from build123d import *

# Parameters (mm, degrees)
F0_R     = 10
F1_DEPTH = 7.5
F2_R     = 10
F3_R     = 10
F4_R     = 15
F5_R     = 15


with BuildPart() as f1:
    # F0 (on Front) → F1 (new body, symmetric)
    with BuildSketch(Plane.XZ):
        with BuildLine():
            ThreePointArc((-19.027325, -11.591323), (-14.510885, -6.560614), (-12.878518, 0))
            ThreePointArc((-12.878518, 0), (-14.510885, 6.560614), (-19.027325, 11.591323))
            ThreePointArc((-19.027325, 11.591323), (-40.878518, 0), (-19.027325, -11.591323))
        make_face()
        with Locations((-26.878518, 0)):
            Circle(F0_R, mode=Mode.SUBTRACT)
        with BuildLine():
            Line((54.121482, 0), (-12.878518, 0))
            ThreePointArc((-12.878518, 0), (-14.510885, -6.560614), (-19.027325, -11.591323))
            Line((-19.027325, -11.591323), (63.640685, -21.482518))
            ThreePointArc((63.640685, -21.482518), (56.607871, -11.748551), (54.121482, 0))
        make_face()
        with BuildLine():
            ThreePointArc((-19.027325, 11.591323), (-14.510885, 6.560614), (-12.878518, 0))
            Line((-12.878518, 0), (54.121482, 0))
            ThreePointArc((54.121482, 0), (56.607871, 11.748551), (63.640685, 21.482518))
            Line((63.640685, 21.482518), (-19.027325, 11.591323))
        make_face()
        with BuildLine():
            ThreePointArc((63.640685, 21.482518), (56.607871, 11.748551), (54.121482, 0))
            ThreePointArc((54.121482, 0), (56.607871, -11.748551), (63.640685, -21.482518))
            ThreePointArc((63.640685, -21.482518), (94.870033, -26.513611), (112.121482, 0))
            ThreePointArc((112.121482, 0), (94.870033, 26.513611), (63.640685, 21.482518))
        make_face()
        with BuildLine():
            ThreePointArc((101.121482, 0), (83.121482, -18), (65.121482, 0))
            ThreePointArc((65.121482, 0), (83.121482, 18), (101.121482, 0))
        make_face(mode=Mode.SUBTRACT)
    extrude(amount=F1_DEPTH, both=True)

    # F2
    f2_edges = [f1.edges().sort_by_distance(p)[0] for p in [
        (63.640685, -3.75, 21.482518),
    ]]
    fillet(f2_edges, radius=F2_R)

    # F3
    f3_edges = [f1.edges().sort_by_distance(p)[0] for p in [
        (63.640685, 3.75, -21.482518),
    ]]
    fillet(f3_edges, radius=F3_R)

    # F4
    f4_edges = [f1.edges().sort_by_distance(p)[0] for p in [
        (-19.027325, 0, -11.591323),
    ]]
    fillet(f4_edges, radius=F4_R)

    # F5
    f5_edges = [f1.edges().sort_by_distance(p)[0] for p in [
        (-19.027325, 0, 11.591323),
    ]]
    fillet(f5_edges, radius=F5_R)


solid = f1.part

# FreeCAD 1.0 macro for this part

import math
import FreeCAD as App
import Part
import Sketcher
from FreeCAD import Vector


def edges_at(feature, points):
    """Names of the edges that pass closest to the given points."""
    edges = feature.Shape.Edges
    near = lambda p: min(range(len(edges)), key=lambda i: edges[i].distToShape(Part.Vertex(*p))[0])
    return sorted({f"Edge{near(p) + 1}" for p in points})

doc = App.newDocument("Part")
body = doc.addObject("PartDesign::Body", "Body")

# Sketch on XZ plane
sketch1 = doc.addObject("Sketcher::SketchObject", "Sketch")
body.addObject(sketch1)
sketch1.AttachmentSupport = (doc.XZ_Plane, [""])
sketch1.MapMode = "FlatFace"
sketch1.addGeometry([
    Part.ArcOfCircle(Part.Circle(Vector(-26.878518, 0, 0), Vector(0, 0, 1), 14), math.radians(55.888894), math.radians(304.111106)),  # 0
    Part.LineSegment(Vector(-19.027325, -11.591323, 0), Vector(63.640685, -21.482518, 0)),  # 1
    Part.ArcOfCircle(Part.Circle(Vector(83.121482, 0, 0), Vector(0, 0, 1), 29), math.radians(-132.202399), math.radians(0)),  # 2
    Part.ArcOfCircle(Part.Circle(Vector(83.121482, 0, 0), Vector(0, 0, 1), 29), math.radians(0), math.radians(132.202399)),  # 3
    Part.LineSegment(Vector(63.640685, 21.482518, 0), Vector(-19.027325, 11.591323, 0)),  # 4
    Part.Circle(Vector(-26.878518, 0, 0), Vector(0, 0, 1), 10),  # 5
    Part.Circle(Vector(83.121482, 0, 0), Vector(0, 0, 1), 18),  # 6
], False)
sketch1.addConstraint([
    Sketcher.Constraint("Coincident", 0, 2, 1, 1),
    Sketcher.Constraint("Coincident", 1, 2, 2, 1),
    Sketcher.Constraint("Tangent", 2, 2, 3, 1),
    Sketcher.Constraint("Coincident", 3, 2, 4, 1),
    Sketcher.Constraint("Coincident", 4, 2, 0, 1),
    Sketcher.Constraint("Coincident", 5, 3, 0, 3),
    Sketcher.Constraint("Coincident", 6, 3, 2, 3),
    Sketcher.Constraint("Equal", 2, 3),
    Sketcher.Constraint("Symmetric", 1, 2, 3, 2, -1),
    Sketcher.Constraint("Symmetric", 0, 2, 4, 2, -1),
    Sketcher.Constraint("PointOnObject", 2, 2, -1),
    Sketcher.Constraint("Diameter", 5, 20.0),
    Sketcher.Constraint("Diameter", 6, 36.0),
    Sketcher.Constraint("Radius", 0, 14.0),
    Sketcher.Constraint("Radius", 2, 29.0),
    Sketcher.Constraint("DistanceX", 0, 3, 2, 3, 110.0),
    Sketcher.Constraint("DistanceX", -1, 1, 2, 3, 83.121482),
    Sketcher.Constraint("DistanceY", 1, 2, 3, 3, 21.482518),
    Sketcher.Constraint("DistanceX", 0, 2, 1, 2, 82.66801),
])
pad1 = doc.addObject("PartDesign::Pad", "Pad")
body.addObject(pad1)
pad1.Profile = sketch1
pad1.Length = 15
pad1.Midplane = True
doc.recompute()

fillet = doc.addObject("PartDesign::Fillet", "Fillet")
body.addObject(fillet)
fillet.Base = (pad1, edges_at(pad1, [(63.641, 0, 21.483)]))
fillet.Radius = 10
doc.recompute()

fillet2 = doc.addObject("PartDesign::Fillet", "Fillet001")
body.addObject(fillet2)
fillet2.Base = (fillet, edges_at(fillet, [(63.641, 0, -21.483)]))
fillet2.Radius = 10
doc.recompute()

fillet3 = doc.addObject("PartDesign::Fillet", "Fillet002")
body.addObject(fillet3)
fillet3.Base = (fillet2, edges_at(fillet2, [(-19.027, 0, -11.591)]))
fillet3.Radius = 15
doc.recompute()

fillet4 = doc.addObject("PartDesign::Fillet", "Fillet003")
body.addObject(fillet4)
fillet4.Base = (fillet3, edges_at(fillet3, [(-19.027, 0, 11.591)]))
fillet4.Radius = 15

doc.recompute()
